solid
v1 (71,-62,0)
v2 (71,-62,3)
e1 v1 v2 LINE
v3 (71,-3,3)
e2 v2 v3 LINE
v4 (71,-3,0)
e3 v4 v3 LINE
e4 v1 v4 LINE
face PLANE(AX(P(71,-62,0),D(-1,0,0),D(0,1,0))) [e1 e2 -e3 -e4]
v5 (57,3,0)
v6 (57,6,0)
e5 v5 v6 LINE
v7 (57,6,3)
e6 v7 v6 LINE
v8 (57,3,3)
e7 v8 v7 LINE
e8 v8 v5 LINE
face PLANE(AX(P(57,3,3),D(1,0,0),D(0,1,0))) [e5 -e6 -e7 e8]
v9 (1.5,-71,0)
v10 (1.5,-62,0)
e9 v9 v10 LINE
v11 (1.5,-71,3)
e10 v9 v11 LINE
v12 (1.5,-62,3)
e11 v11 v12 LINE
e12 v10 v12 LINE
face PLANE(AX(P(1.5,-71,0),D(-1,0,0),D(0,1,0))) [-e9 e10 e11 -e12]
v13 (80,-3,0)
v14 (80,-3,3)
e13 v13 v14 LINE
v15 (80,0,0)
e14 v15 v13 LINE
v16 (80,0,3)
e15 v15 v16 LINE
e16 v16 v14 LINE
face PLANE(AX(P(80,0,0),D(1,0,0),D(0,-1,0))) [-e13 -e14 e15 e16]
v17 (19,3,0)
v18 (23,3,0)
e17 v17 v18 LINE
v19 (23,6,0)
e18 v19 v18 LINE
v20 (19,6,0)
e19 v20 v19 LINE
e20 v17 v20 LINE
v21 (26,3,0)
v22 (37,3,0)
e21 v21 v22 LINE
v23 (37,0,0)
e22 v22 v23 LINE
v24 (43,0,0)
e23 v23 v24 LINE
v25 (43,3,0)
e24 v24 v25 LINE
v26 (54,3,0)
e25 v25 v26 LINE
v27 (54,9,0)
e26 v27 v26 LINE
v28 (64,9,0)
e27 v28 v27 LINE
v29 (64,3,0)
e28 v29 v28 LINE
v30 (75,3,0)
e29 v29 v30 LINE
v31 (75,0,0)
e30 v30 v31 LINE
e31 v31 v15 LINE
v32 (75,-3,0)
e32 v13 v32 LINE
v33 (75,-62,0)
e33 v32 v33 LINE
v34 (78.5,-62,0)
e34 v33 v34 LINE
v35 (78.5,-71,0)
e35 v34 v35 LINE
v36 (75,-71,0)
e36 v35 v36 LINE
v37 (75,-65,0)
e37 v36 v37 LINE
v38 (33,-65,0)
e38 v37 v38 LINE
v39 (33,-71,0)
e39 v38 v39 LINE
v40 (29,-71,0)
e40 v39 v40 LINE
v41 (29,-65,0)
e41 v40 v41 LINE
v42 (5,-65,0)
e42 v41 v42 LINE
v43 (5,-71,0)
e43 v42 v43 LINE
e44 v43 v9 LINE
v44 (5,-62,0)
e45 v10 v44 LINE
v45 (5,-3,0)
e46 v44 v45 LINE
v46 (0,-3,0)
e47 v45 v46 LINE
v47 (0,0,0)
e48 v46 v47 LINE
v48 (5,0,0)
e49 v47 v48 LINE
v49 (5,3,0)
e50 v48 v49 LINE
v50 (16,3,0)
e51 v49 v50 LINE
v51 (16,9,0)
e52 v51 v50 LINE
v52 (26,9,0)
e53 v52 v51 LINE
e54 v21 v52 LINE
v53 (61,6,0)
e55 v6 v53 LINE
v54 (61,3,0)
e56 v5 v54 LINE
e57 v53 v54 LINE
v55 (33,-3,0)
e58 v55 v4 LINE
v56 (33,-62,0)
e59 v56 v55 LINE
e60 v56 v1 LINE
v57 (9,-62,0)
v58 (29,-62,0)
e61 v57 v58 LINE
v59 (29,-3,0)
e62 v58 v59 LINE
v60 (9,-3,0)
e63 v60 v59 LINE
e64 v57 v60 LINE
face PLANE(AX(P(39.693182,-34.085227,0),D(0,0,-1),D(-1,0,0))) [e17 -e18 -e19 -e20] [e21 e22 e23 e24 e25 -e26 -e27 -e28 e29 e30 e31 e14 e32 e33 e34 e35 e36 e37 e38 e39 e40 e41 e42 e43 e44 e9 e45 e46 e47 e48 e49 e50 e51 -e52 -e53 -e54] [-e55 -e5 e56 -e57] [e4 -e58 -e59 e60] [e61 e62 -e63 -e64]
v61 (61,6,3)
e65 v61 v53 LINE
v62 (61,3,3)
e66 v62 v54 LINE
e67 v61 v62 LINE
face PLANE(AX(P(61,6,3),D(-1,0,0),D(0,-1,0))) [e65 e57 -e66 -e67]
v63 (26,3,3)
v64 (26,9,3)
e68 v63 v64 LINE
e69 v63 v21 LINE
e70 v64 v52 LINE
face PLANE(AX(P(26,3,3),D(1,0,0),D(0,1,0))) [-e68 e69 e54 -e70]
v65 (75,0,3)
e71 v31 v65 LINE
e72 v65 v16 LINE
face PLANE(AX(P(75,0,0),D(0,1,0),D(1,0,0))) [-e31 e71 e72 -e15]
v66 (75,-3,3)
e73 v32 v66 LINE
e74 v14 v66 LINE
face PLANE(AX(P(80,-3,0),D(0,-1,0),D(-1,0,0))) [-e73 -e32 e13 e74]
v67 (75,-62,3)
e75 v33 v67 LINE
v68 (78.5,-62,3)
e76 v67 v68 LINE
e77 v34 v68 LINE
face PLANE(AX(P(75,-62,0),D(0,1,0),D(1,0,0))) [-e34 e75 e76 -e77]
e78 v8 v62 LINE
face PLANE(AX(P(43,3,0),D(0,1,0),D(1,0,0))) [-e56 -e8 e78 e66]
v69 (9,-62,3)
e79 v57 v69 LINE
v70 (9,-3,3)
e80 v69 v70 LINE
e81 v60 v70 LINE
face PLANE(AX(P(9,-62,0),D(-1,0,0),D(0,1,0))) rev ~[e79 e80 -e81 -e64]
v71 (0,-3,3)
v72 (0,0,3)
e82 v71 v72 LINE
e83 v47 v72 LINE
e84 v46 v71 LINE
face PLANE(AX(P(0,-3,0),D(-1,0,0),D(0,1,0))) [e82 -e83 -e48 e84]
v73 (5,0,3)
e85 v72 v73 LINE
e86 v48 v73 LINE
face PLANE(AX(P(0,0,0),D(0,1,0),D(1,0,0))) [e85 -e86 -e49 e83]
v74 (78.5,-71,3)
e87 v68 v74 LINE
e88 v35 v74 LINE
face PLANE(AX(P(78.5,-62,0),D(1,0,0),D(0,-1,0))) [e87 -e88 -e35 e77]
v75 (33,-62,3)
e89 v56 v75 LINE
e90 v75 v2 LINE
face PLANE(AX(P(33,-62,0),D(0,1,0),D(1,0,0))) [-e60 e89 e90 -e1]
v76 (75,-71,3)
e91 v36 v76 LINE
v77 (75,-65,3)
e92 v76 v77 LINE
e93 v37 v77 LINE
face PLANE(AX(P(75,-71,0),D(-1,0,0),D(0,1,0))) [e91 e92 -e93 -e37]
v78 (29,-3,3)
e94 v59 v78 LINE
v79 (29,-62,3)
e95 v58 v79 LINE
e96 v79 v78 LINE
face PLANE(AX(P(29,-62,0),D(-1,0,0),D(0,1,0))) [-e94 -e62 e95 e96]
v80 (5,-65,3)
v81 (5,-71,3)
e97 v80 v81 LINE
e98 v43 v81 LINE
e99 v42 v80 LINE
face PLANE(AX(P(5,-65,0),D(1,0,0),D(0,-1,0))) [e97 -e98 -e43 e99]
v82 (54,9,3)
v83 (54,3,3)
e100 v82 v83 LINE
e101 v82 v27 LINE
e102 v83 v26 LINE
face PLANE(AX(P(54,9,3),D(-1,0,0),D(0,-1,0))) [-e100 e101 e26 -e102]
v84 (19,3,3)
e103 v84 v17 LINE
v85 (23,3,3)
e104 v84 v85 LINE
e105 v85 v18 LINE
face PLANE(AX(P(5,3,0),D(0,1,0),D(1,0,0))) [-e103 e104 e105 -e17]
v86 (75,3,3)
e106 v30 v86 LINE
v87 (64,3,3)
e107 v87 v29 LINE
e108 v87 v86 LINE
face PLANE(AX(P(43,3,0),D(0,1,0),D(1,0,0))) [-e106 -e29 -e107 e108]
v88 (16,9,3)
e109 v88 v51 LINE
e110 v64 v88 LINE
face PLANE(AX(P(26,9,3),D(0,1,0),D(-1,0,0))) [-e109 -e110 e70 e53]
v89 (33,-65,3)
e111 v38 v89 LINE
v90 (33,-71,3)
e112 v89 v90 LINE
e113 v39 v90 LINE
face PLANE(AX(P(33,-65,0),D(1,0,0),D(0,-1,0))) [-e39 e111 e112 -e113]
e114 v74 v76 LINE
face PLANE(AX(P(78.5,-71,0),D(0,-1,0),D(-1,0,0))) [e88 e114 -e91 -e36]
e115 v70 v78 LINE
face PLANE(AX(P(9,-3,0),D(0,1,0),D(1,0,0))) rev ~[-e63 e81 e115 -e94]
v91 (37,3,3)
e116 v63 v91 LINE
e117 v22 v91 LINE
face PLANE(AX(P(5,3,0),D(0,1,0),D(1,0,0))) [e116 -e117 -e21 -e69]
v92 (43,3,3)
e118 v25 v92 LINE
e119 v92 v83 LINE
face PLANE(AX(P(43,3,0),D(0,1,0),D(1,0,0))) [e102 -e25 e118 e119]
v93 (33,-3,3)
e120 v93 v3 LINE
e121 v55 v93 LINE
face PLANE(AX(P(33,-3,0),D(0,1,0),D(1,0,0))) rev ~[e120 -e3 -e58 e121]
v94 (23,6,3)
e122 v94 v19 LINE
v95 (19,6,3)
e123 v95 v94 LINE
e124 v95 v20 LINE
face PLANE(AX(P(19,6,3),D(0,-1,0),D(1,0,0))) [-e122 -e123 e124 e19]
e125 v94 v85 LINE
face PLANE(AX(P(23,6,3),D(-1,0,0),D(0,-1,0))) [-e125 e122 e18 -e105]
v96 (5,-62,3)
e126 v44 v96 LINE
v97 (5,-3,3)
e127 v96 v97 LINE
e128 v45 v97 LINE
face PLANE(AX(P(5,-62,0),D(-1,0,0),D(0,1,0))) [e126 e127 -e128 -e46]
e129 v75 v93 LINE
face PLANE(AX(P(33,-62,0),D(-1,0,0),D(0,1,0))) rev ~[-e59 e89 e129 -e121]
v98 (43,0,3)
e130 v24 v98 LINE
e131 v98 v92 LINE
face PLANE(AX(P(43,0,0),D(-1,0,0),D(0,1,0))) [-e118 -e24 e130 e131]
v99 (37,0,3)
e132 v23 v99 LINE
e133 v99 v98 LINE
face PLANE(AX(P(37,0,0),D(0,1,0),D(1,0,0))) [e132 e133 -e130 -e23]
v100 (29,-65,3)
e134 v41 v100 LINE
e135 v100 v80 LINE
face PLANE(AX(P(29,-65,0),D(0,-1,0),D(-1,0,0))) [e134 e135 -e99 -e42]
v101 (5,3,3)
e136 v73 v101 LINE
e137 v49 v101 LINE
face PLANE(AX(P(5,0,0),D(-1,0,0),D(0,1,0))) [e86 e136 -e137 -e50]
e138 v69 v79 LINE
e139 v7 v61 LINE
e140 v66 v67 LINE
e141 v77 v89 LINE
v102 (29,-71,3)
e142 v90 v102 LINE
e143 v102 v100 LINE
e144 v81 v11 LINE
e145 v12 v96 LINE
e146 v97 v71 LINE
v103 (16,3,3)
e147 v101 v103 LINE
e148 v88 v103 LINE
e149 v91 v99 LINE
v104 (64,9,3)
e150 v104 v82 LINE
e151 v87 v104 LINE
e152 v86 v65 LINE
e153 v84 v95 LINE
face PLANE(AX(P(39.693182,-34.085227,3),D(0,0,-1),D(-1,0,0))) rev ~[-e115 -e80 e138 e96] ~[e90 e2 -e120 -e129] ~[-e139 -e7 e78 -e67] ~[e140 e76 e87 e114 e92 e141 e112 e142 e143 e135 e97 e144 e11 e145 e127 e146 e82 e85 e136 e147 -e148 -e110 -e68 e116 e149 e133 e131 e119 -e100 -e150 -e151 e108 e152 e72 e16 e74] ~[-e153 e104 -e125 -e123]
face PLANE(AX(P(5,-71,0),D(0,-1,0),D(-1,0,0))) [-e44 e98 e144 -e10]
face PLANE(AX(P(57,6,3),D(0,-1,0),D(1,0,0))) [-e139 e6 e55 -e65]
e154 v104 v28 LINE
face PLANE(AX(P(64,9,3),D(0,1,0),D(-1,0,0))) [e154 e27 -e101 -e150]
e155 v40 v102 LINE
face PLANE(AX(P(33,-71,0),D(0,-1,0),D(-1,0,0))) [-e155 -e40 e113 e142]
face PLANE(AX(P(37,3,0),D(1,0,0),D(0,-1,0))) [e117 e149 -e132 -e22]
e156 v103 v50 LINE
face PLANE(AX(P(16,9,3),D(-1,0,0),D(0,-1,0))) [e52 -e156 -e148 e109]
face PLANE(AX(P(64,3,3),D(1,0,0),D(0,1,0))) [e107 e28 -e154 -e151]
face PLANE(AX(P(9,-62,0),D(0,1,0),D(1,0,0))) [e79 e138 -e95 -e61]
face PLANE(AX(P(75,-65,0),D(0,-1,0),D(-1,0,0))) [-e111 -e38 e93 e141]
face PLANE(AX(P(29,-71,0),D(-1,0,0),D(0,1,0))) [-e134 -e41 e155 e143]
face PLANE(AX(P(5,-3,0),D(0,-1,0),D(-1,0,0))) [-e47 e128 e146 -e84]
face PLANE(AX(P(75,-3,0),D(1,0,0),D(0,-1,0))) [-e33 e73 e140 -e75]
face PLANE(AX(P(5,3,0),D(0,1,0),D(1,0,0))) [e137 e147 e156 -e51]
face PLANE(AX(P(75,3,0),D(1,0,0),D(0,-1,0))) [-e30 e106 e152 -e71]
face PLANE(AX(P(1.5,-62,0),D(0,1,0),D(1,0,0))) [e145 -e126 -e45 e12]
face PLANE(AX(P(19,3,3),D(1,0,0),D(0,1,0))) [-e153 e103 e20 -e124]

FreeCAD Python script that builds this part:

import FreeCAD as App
import Part
import Sketcher
Q = App.Units.Quantity


def add_polygon(sketch, points):
    """Adds a closed chain of lines whose ends are joined by coincident constraints."""
    first, n = sketch.GeometryCount, len(points)
    for a, b in zip(points, points[1:] + points[:1]):
        sketch.addGeometry(Part.LineSegment(App.Vector(*a, 0), App.Vector(*b, 0)), False)
    for i in range(n):
        sketch.addConstraint(Sketcher.Constraint("Coincident", first + i, 2, first + (i + 1) % n, 1))

doc = App.newDocument("Part")
body = doc.addObject("PartDesign::Body", "Body")

# Sketch on XY plane
sketch1 = doc.addObject("Sketcher::SketchObject", "Sketch")
body.addObject(sketch1)
sketch1.AttachmentSupport = (doc.XY_Plane, [""])
sketch1.MapMode = "FlatFace"
add_polygon(sketch1, [(0, -3), (5, -3), (5, -62), (1.5, -62), (1.5, -71), (5, -71), (5, -65), (29, -65), (29, -71), (33, -71), (33, -65), (75, -65), (75, -71), (78.5, -71), (78.5, -62), (75, -62), (75, -3), (80, -3), (80, 0), (75, 0), (75, 3), (43, 3), (43, 0), (37, 0), (37, 3), (5, 3), (5, 0), (0, 0)])  # lines 0-27
add_polygon(sketch1, [(33, -62), (33, -3), (71, -3), (71, -62)])  # lines 28-31
add_polygon(sketch1, [(9, -62), (9, -3), (29, -3), (29, -62)])  # lines 32-35
sketch1.addConstraint([
    Sketcher.Constraint("Horizontal", 0),
    Sketcher.Constraint("Vertical", 1),
    Sketcher.Constraint("Horizontal", 2),
    Sketcher.Constraint("Vertical", 3),
    Sketcher.Constraint("Horizontal", 4),
    Sketcher.Constraint("Vertical", 5),
    Sketcher.Constraint("Horizontal", 6),
    Sketcher.Constraint("Vertical", 7),
    Sketcher.Constraint("Horizontal", 8),
    Sketcher.Constraint("Vertical", 9),
    Sketcher.Constraint("Horizontal", 10),
    Sketcher.Constraint("Vertical", 11),
    Sketcher.Constraint("Horizontal", 12),
    Sketcher.Constraint("Vertical", 13),
    Sketcher.Constraint("Horizontal", 14),
    Sketcher.Constraint("Vertical", 15),
    Sketcher.Constraint("Horizontal", 16),
    Sketcher.Constraint("Vertical", 17),
    Sketcher.Constraint("Horizontal", 18),
    Sketcher.Constraint("Vertical", 19),
    Sketcher.Constraint("Horizontal", 20),
    Sketcher.Constraint("Vertical", 21),
    Sketcher.Constraint("Horizontal", 22),
    Sketcher.Constraint("Vertical", 23),
    Sketcher.Constraint("Horizontal", 24),
    Sketcher.Constraint("Vertical", 25),
    Sketcher.Constraint("Horizontal", 26),
    Sketcher.Constraint("Vertical", 27),
    Sketcher.Constraint("Vertical", 28),
    Sketcher.Constraint("Horizontal", 29),
    Sketcher.Constraint("Vertical", 30),
    Sketcher.Constraint("Horizontal", 31),
    Sketcher.Constraint("Vertical", 32),
    Sketcher.Constraint("Horizontal", 33),
    Sketcher.Constraint("Vertical", 34),
    Sketcher.Constraint("Horizontal", 35),
    Sketcher.Constraint("Coincident", 26, 2, -1, 1),
    Sketcher.Constraint("Symmetric", 15, 2, 19, 2, -1),
    Sketcher.Constraint("Symmetric", 0, 2, 24, 2, -1),
    Sketcher.Constraint("PointOnObject", 17, 2, -1),
    Sketcher.Constraint("PointOnObject", 21, 2, -1),
    Sketcher.Constraint("Horizontal", 4, 2, 7, 2),
    Sketcher.Constraint("Horizontal", 6, 2, 9, 2),
    Sketcher.Constraint("Horizontal", 8, 2, 11, 2),
    Sketcher.Constraint("Horizontal", 2, 2, 13, 2),
    Sketcher.Constraint("Horizontal", 0, 2, 15, 2),
    Sketcher.Constraint("Horizontal", 27, 2, 28, 2),
    Sketcher.Constraint("Horizontal", 14, 2, 30, 2),
    Sketcher.Constraint("Horizontal", 29, 2, 32, 2),
    Sketcher.Constraint("Horizontal", 31, 2, 34, 2),
    Sketcher.Constraint("Vertical", 1, 2, 4, 2),
    Sketcher.Constraint("Vertical", 11, 2, 14, 2),
    Sketcher.Constraint("Vertical", 9, 2, 28, 2),
    Sketcher.Constraint("Vertical", 7, 2, 33, 2),
    Sketcher.Constraint("Equal", 4, 12),
    Sketcher.Constraint("Equal", 0, 16),
    Sketcher.Constraint("Equal", 20, 24),
    Sketcher.Constraint("Equal", 22, 5),
    Sketcher.Constraint("DistanceX", 0, 1, 0, 2, Q("5 mm")),
    Sketcher.Constraint("DistanceX", 6, 1, 6, 2, Q("24 mm")),
    Sketcher.Constraint("DistanceX", 8, 1, 8, 2, Q("4 mm")),
    Sketcher.Constraint("DistanceX", 10, 1, 10, 2, Q("42 mm")),
    Sketcher.Constraint("DistanceX", 20, 2, 20, 1, Q("32 mm")),
    Sketcher.Constraint("DistanceX", 29, 1, 29, 2, Q("38 mm")),
    Sketcher.Constraint("DistanceX", 33, 1, 33, 2, Q("20 mm")),
    Sketcher.Constraint("DistanceY", 1, 2, 1, 1, Q("59 mm")),
    Sketcher.Constraint("DistanceY", 3, 2, 3, 1, Q("9 mm")),
    Sketcher.Constraint("DistanceY", 17, 1, 17, 2, Q("3 mm")),
    Sketcher.Constraint("DistanceX", 2, 2, 2, 1, Q("3.5 mm")),
])
pad1 = doc.addObject("PartDesign::Pad", "Pad")
body.addObject(pad1)
pad1.Profile = sketch1
pad1.Length = 3

# Sketch on XY plane
sketch2 = doc.addObject("Sketcher::SketchObject", "Sketch001")
body.addObject(sketch2)
sketch2.AttachmentSupport = (doc.XY_Plane, [""])
sketch2.MapMode = "FlatFace"
sketch2.AttachmentOffset = App.Placement(App.Vector(0, 0, 3), App.Rotation())
add_polygon(sketch2, [(16, 9), (16, 3), (19, 3), (19, 6), (23, 6), (23, 3), (26, 3), (26, 9)])  # lines 0-7
add_polygon(sketch2, [(54, 3), (57, 3), (57, 6), (61, 6), (61, 3), (64, 3), (64, 9), (54, 9)])  # lines 8-15
sketch2.addConstraint([
    Sketcher.Constraint("Vertical", 0),
    Sketcher.Constraint("Horizontal", 1),
    Sketcher.Constraint("Vertical", 2),
    Sketcher.Constraint("Horizontal", 3),
    Sketcher.Constraint("Vertical", 4),
    Sketcher.Constraint("Horizontal", 5),
    Sketcher.Constraint("Vertical", 6),
    Sketcher.Constraint("Horizontal", 7),
    Sketcher.Constraint("Horizontal", 8),
    Sketcher.Constraint("Vertical", 9),
    Sketcher.Constraint("Horizontal", 10),
    Sketcher.Constraint("Vertical", 11),
    Sketcher.Constraint("Horizontal", 12),
    Sketcher.Constraint("Vertical", 13),
    Sketcher.Constraint("Horizontal", 14),
    Sketcher.Constraint("Vertical", 15),
    Sketcher.Constraint("Horizontal", 1, 2, 4, 2),
    Sketcher.Constraint("Horizontal", 5, 2, 8, 2),
    Sketcher.Constraint("Horizontal", 3, 2, 9, 2),
    Sketcher.Constraint("Horizontal", 8, 2, 11, 2),
    Sketcher.Constraint("Horizontal", 7, 2, 13, 2),
    Sketcher.Constraint("Equal", 1, 5),
    Sketcher.Constraint("Equal", 5, 8),
    Sketcher.Constraint("Equal", 3, 10),
    Sketcher.Constraint("Equal", 8, 12),
    Sketcher.Constraint("Equal", 12, 2),
    Sketcher.Constraint("DistanceX", 1, 1, 1, 2, Q("3 mm")),
    Sketcher.Constraint("DistanceX", 3, 1, 3, 2, Q("4 mm")),
    Sketcher.Constraint("DistanceY", 0, 2, 0, 1, Q("6 mm")),
    Sketcher.Constraint("DistanceX", -1, 1, 0, 2, Q("16 mm")),
    Sketcher.Constraint("DistanceY", -1, 1, 0, 2, Q("3 mm")),
    Sketcher.Constraint("DistanceX", -1, 1, 8, 2, Q("57 mm")),
])
pad2 = doc.addObject("PartDesign::Pad", "Pad001")
body.addObject(pad2)
pad2.Profile = sketch2
pad2.Length = 3
pad2.Reversed = True

doc.recompute()
